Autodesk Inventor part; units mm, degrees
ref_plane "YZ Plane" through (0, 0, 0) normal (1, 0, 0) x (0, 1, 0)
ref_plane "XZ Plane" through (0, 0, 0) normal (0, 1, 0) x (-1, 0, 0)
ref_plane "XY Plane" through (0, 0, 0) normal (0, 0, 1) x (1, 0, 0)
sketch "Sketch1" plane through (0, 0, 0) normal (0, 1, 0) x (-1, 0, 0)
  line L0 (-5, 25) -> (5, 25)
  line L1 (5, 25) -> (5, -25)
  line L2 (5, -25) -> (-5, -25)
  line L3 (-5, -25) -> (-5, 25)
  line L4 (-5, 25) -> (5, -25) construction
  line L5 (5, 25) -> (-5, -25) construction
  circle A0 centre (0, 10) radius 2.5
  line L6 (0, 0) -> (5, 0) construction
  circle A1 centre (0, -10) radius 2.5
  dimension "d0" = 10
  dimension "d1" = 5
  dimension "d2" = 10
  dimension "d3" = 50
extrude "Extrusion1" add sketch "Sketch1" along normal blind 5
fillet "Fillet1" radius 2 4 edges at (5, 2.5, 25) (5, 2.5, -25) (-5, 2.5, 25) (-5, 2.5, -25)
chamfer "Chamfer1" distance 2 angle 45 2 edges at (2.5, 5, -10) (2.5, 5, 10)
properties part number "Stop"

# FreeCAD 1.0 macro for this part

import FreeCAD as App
import Part
import Sketcher

V = App.Vector


def edges_at(feature, points):
    """Names of the edges that pass closest to the given points."""
    edges = feature.Shape.Edges
    near = lambda p: min(range(len(edges)), key=lambda i: edges[i].distToShape(Part.Vertex(*p))[0])
    return sorted({f"Edge{near(p) + 1}" for p in points})


def add_polygon(sketch, points):
    """Adds a closed chain of lines whose ends are joined by coincident constraints."""
    first, n = sketch.GeometryCount, len(points)
    for a, b in zip(points, points[1:] + points[:1]):
        sketch.addGeometry(Part.LineSegment(App.Vector(*a, 0), App.Vector(*b, 0)), False)
    for i in range(n):
        sketch.addConstraint(Sketcher.Constraint("Coincident", first + i, 2, first + (i + 1) % n, 1))

doc = App.newDocument("Part")
body = doc.addObject("PartDesign::Body", "Body")

# Sketch on XZ plane
sketch1 = doc.addObject("Sketcher::SketchObject", "Sketch")
body.addObject(sketch1)
sketch1.AttachmentSupport = (doc.XZ_Plane, [""])
sketch1.MapMode = "FlatFace"
add_polygon(sketch1, [(-5, 25), (5, 25), (5, -25), (-5, -25)])  # lines 0-3
sketch1.addGeometry(Part.Circle(V(0, -10, 0), V(0, 0, 1), 2.5), False)  # 4
sketch1.addGeometry(Part.Circle(V(0, 10, 0), V(0, 0, 1), 2.5), False)  # 5
sketch1.addConstraint(Sketcher.Constraint("Horizontal", 0))
sketch1.addConstraint(Sketcher.Constraint("Vertical", 1))
sketch1.addConstraint(Sketcher.Constraint("Horizontal", 2))
sketch1.addConstraint(Sketcher.Constraint("Vertical", 3))
sketch1.addConstraint(Sketcher.Constraint("Equal", 4, 5))
sketch1.addConstraint(Sketcher.Constraint("Symmetric", 4, 3, 5, 3, -1, 1))
sketch1.addConstraint(Sketcher.Constraint("Symmetric", 0, 2, 2, 2, -1, 1))
sketch1.addConstraint(Sketcher.Constraint("PointOnObject", 4, 3, -2))
sketch1.addConstraint(Sketcher.Constraint("Diameter", 4, 5.0))
sketch1.addConstraint(Sketcher.Constraint("DistanceX", 0, 1, 0, 2, 10.0))
sketch1.addConstraint(Sketcher.Constraint("DistanceY", 1, 2, 1, 1, 50.0))
sketch1.addConstraint(Sketcher.Constraint("DistanceY", 4, 3, -1, 1, 10.0))
pad1 = doc.addObject("PartDesign::Pad", "Pad")
body.addObject(pad1)
pad1.Profile = sketch1
pad1.Length = 5
pad1.Reversed = True
doc.recompute()

fillet = doc.addObject("PartDesign::Fillet", "Fillet")
body.addObject(fillet)
fillet.Base = (pad1, edges_at(pad1, [
    (5, 2.5, 25),
    (5, 2.5, -25),
    (-5, 2.5, 25),
    (-5, 2.5, -25),
]))
fillet.Radius = 2
doc.recompute()

chamfer = doc.addObject("PartDesign::Chamfer", "Chamfer")
body.addObject(chamfer)
chamfer.Base = (fillet, edges_at(fillet, [(2.5, 5, -10), (2.5, 5, 10)]))
chamfer.Size = 2

doc.recompute()
